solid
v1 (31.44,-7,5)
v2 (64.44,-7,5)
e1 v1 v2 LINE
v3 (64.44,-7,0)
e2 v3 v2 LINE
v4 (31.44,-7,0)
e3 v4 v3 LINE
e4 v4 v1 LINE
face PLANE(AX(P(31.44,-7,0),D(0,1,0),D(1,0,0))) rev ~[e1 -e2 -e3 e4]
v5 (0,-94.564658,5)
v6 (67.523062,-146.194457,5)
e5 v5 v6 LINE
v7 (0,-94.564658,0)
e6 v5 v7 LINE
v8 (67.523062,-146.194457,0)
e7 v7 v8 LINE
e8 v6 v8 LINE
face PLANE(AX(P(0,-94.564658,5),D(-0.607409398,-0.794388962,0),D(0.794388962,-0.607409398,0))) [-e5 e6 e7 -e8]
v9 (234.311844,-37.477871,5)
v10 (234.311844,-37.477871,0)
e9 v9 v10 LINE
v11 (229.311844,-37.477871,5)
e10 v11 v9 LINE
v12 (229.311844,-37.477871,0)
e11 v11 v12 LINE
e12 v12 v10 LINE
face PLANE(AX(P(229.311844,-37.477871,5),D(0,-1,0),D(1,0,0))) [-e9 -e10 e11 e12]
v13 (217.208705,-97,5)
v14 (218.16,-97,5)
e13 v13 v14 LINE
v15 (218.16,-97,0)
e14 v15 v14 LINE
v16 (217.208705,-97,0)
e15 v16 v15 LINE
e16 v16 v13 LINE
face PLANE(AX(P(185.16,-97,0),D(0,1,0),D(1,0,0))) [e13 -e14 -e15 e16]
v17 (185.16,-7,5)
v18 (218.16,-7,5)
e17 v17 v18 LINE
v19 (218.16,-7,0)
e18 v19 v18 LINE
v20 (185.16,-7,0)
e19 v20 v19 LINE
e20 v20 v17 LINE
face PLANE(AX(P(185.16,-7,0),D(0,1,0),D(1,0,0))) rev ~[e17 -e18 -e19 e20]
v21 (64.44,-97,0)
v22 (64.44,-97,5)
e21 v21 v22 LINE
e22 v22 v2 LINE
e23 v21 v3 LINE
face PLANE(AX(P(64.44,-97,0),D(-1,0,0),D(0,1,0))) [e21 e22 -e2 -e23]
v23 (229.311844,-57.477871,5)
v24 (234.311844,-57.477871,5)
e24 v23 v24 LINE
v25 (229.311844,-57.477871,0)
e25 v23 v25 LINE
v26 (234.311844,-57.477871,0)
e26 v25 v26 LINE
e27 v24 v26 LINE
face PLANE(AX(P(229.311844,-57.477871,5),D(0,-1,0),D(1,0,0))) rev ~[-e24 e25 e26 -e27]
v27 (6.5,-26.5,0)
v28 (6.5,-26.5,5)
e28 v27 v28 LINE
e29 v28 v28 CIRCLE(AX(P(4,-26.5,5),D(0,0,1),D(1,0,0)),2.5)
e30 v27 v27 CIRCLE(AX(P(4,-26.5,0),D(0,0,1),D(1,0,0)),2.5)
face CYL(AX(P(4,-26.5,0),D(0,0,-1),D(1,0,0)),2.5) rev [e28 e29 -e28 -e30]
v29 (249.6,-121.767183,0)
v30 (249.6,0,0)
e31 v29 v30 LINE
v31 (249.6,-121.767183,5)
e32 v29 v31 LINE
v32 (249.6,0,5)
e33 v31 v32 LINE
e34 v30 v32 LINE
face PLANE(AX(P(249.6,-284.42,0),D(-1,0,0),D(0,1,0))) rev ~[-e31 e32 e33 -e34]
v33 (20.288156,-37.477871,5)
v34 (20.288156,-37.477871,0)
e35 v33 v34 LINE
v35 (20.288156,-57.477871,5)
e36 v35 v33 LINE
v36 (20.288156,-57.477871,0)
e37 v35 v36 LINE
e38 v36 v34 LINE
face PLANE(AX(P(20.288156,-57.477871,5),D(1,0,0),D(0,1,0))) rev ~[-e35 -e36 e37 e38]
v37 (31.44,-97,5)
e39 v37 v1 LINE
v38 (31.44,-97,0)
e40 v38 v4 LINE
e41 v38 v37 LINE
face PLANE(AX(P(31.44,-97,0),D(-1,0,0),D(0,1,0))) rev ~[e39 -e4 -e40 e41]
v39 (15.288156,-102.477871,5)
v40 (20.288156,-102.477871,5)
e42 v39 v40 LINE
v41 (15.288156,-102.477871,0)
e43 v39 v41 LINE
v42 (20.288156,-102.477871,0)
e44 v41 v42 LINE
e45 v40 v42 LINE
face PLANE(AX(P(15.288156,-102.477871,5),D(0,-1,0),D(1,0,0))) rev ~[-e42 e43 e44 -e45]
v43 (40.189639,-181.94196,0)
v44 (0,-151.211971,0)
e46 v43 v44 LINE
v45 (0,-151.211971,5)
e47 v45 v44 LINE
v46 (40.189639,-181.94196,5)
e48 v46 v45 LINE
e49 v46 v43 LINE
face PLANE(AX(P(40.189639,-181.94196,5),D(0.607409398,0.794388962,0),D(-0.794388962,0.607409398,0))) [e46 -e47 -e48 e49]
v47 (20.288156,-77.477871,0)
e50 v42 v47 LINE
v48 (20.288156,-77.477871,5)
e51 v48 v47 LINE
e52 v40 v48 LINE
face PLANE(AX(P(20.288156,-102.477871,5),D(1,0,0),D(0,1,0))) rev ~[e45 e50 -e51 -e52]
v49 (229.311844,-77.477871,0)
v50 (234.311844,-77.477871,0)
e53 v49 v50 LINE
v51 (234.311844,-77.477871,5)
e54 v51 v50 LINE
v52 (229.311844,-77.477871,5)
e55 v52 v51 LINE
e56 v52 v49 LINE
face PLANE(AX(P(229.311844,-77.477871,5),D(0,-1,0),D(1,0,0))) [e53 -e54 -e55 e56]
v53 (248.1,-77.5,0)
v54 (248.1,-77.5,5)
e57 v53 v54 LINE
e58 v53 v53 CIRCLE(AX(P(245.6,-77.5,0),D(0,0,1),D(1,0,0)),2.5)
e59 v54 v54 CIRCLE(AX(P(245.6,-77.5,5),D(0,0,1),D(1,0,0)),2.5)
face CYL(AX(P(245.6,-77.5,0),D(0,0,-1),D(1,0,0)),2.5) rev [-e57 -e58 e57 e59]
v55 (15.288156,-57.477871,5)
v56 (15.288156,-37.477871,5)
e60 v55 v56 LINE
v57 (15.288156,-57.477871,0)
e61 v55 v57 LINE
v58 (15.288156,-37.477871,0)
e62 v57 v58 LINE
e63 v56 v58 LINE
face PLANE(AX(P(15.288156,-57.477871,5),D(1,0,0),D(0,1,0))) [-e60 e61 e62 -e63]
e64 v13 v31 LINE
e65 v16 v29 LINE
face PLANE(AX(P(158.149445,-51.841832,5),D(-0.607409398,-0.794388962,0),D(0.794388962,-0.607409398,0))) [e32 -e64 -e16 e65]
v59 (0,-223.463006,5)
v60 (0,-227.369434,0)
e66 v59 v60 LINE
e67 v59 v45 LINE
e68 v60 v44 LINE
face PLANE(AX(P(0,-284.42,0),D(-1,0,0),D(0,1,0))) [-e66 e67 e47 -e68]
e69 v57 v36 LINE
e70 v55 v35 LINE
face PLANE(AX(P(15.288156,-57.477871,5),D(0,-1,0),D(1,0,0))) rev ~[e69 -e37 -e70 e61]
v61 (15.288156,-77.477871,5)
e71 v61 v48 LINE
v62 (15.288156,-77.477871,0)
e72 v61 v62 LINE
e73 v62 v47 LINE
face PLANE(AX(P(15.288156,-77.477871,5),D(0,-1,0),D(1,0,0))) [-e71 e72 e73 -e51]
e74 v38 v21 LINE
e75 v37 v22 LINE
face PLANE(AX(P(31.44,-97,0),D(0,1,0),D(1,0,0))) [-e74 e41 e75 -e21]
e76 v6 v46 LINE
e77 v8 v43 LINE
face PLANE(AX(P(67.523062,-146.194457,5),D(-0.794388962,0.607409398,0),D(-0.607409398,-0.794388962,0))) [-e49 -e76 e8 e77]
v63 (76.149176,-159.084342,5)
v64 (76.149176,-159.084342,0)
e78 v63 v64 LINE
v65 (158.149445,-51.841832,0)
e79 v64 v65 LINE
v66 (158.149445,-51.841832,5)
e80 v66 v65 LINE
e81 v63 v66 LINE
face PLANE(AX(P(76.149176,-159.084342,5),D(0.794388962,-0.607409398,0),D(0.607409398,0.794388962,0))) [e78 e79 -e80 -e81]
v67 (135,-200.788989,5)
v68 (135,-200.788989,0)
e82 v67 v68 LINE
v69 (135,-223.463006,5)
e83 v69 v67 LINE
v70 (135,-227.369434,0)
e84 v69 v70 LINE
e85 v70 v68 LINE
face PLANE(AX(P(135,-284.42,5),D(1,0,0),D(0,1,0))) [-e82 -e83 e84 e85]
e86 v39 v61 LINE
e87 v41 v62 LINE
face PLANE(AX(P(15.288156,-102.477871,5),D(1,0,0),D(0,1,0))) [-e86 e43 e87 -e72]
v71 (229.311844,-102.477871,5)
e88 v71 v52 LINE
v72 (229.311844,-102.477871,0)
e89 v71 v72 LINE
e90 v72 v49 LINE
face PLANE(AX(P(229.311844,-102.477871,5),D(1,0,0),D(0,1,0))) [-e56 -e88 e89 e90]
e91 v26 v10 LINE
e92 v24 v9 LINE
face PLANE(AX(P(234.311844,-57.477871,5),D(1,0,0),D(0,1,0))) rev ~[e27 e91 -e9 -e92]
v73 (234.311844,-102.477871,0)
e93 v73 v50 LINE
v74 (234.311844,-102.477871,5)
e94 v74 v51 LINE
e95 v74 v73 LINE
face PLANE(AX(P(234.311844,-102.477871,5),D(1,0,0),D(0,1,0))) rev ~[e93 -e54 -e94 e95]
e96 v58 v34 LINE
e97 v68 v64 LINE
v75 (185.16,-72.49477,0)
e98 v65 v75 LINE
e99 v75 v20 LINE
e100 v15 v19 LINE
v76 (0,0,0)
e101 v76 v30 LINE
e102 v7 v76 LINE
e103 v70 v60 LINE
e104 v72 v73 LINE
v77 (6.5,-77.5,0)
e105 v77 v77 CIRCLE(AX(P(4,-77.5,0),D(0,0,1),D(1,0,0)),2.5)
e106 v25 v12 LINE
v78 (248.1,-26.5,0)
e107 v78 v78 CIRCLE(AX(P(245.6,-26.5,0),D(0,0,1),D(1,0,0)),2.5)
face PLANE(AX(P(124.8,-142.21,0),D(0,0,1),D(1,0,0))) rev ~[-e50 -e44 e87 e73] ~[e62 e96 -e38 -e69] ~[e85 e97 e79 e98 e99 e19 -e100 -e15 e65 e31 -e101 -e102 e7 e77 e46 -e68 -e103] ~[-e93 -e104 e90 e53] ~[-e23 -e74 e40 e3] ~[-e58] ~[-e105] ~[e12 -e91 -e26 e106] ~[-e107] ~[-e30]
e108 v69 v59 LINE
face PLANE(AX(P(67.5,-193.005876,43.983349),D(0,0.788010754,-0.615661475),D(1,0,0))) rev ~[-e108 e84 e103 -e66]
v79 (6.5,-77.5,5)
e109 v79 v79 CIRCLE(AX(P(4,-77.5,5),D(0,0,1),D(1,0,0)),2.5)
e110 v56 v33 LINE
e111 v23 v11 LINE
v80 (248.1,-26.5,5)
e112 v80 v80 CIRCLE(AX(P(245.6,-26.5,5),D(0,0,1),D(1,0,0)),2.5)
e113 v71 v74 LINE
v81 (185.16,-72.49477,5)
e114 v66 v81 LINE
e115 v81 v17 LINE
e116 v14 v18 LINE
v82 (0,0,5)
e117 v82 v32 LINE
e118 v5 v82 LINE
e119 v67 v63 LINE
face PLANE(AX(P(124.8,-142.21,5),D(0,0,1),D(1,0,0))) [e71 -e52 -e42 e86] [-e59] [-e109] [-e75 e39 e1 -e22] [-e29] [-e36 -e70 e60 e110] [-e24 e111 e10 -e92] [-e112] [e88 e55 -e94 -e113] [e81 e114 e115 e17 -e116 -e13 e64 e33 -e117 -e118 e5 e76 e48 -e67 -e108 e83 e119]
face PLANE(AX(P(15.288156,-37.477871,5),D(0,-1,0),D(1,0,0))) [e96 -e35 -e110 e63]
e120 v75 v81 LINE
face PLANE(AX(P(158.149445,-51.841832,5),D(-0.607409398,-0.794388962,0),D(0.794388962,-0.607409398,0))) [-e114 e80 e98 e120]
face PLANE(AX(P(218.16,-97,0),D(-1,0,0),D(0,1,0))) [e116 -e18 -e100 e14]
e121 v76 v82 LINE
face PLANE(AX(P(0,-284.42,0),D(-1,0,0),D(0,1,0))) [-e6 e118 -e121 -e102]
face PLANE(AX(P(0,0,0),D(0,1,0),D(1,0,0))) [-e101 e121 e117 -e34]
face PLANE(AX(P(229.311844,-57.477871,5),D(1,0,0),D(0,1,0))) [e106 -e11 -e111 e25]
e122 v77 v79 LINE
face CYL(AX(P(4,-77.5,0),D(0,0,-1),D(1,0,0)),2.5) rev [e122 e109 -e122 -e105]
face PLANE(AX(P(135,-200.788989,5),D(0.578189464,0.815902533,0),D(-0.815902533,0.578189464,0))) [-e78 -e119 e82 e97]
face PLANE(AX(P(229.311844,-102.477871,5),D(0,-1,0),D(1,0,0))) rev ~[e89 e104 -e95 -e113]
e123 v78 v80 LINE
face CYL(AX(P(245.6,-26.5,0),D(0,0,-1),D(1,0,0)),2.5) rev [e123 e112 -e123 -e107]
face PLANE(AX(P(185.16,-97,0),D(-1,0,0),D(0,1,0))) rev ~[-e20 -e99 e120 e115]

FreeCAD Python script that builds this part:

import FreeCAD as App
import Part
import Sketcher

V = App.Vector
Q = App.Units.Quantity


def add_polygon(sketch, points):
    """Adds a closed chain of lines whose ends are joined by coincident constraints."""
    first, n = sketch.GeometryCount, len(points)
    for a, b in zip(points, points[1:] + points[:1]):
        sketch.addGeometry(Part.LineSegment(App.Vector(*a, 0), App.Vector(*b, 0)), False)
    for i in range(n):
        sketch.addConstraint(Sketcher.Constraint("Coincident", first + i, 2, first + (i + 1) % n, 1))

doc = App.newDocument("Part")
body = doc.addObject("PartDesign::Body", "Body")

sketch1 = body.newObject("Sketcher::SketchObject", "Sketch")
sketch1.AttachmentSupport = (doc.getObject("XY_Plane"), [""])
sketch1.MapMode = "FlatFace"
add_polygon(sketch1, [(0, 0), (0, -284.4), (249.6, -284.4), (249.6, 0)])
sketch1.addGeometry(Part.Circle(V(4, -77.5, 0), V(0, 0, 1), 2.5), False)
sketch1.addGeometry(Part.Circle(V(245.6, -77.5, 0), V(0, 0, 1), 2.5), False)
add_polygon(sketch1, [(64.4, -97), (31.4, -97), (31.4, -7), (64.4, -7)])
sketch1.addGeometry(Part.Circle(V(4, -26.5, 0), V(0, 0, 1), 2.5), False)
add_polygon(sketch1, [(218.2, -97), (185.2, -97), (185.2, -7), (218.2, -7)])
sketch1.addGeometry(Part.Circle(V(245.6, -26.5, 0), V(0, 0, 1), 2.5), False)
sketch1.addConstraint([
    Sketcher.Constraint("Vertical", 0),
    Sketcher.Constraint("Horizontal", 1),
    Sketcher.Constraint("Vertical", 2),
    Sketcher.Constraint("Horizontal", 3),
    Sketcher.Constraint("Horizontal", 6),
    Sketcher.Constraint("Vertical", 7),
    Sketcher.Constraint("Horizontal", 8),
    Sketcher.Constraint("Vertical", 9),
    Sketcher.Constraint("Horizontal", 11),
    Sketcher.Constraint("Vertical", 12),
    Sketcher.Constraint("Horizontal", 13),
    Sketcher.Constraint("Vertical", 14),
    Sketcher.Constraint("Coincident", 3, 2, -1, 1),
    Sketcher.Constraint("Equal", 4, 5),
    Sketcher.Constraint("Equal", 5, 10),
    Sketcher.Constraint("Equal", 10, 15),
    Sketcher.Constraint("Horizontal", 4, 3, 5, 3),
    Sketcher.Constraint("Horizontal", 10, 3, 15, 3),
    Sketcher.Constraint("Horizontal", 9, 2, 11, 2),
    Sketcher.Constraint("Horizontal", 8, 2, 12, 2),
    Sketcher.Constraint("Vertical", 4, 3, 10, 3),
    Sketcher.Constraint("Vertical", 5, 3, 15, 3),
    Sketcher.Constraint("Equal", 8, 11),
    Sketcher.Constraint("Diameter", 4, Q("5 mm")),
    Sketcher.Constraint("DistanceX", 6, 2, 6, 1, Q("33 mm")),
    Sketcher.Constraint("DistanceY", 7, 1, 7, 2, Q("90 mm")),
    Sketcher.Constraint("DistanceX", 1, 1, 1, 2, Q("249.6 mm")),
    Sketcher.Constraint("DistanceX", -1, 1, 4, 3, Q("4 mm")),
    Sketcher.Constraint("DistanceY", 6, 2, -1, 1, Q("97 mm")),
    Sketcher.Constraint("DistanceY", 4, 3, 10, 3, Q("51 mm")),
    Sketcher.Constraint("DistanceX", 5, 3, 1, 2, Q("4 mm")),
    Sketcher.Constraint("DistanceY", 0, 2, 0, 1, Q("284.42 mm")),
    Sketcher.Constraint("DistanceY", 4, 3, -1, 1, Q("77.5 mm")),
    Sketcher.Constraint("DistanceX", -1, 1, 6, 2, Q("31.44 mm")),
    Sketcher.Constraint("DistanceX", -1, 1, 11, 2, Q("185.16 mm")),
])
pad1 = body.newObject("PartDesign::Pad", "Pad")
pad1.Profile = sketch1
pad1.Length = 5

sketch2 = body.newObject("Sketcher::SketchObject", "Sketch001")
sketch2.Placement = App.Placement(V(0, -141.187539, 110.307795), App.Rotation(V(1, 0, 0), V(0, -0.615661475, -0.788010754), V(0, 0.788010754, -0.615661475), "ZXY"))
add_polygon(sketch2, [(0, 206), (0, -38), (135, -38), (135, 206)])
sketch2.addConstraint([
    Sketcher.Constraint("Vertical", 0),
    Sketcher.Constraint("Horizontal", 1),
    Sketcher.Constraint("Vertical", 2),
    Sketcher.Constraint("Horizontal", 3),
    Sketcher.Constraint("PointOnObject", 0, 2, -2),
    Sketcher.Constraint("DistanceX", 1, 1, 1, 2, Q("135 mm")),
    Sketcher.Constraint("DistanceY", 0, 2, 0, 1, Q("244.466651 mm")),
    Sketcher.Constraint("DistanceY", 0, 2, -1, 1, Q("38.066395 mm")),
])
pocket1 = body.newObject("PartDesign::Pocket", "Pocket")
pocket1.Profile = sketch2
pocket1.Type = "ThroughAll"

sketch3 = body.newObject("Sketcher::SketchObject", "Sketch002")
sketch3.AttachmentSupport = (doc.getObject("XY_Plane"), [""])
sketch3.MapMode = "FlatFace"
sketch3.AttachmentOffset = App.Placement(V(0, 0, 5), App.Rotation())
add_polygon(sketch3, [(158, -52), (76, -159), (135, -201), (135, -284), (207, -340), (328, -182)])
sketch3.addConstraint([
    Sketcher.Constraint("Vertical", 2),
    Sketcher.Constraint("Perpendicular", 0, 3),
    Sketcher.Constraint("Perpendicular", 3, 4),
    Sketcher.Constraint("Perpendicular", 4, 5),
    Sketcher.Constraint("Distance", 0, Q("135 mm")),
    Sketcher.Constraint("DistanceX", -1, 1, 1, 2, Q("135 mm")),
    Sketcher.Constraint("DistanceY", 2, 2, -1, 1, Q("284.42 mm")),
    Sketcher.Constraint("DistanceY", 2, 2, 2, 1, Q("83.631011 mm")),
    Sketcher.Constraint("Distance", 4, Q("198.818719 mm")),
    Sketcher.Constraint("DistanceX", -1, 1, 3, 2, Q("207.318768 mm")),
    Sketcher.Constraint("DistanceY", 4, 2, -1, 1, Q("181.777318 mm")),
    Sketcher.Constraint("DistanceY", 3, 2, 0, 2, Q("180.632372 mm")),
])
pocket2 = body.newObject("PartDesign::Pocket", "Pocket001")
pocket2.Profile = sketch3
pocket2.Type = "ThroughAll"

sketch4 = body.newObject("Sketcher::SketchObject", "Sketch003")
sketch4.AttachmentSupport = (doc.getObject("XY_Plane"), [""])
sketch4.MapMode = "FlatFace"
sketch4.AttachmentOffset = App.Placement(V(0, 0, 5), App.Rotation())
add_polygon(sketch4, [(68, -146), (0, -95), (-27, -130), (40, -182)])
sketch4.addConstraint([
    Sketcher.Constraint("PointOnObject", 0, 2, -2),
    Sketcher.Constraint("Perpendicular", 0, 1),
    Sketcher.Constraint("Perpendicular", 1, 2),
    Sketcher.Constraint("Perpendicular", 2, 3),
    Sketcher.Constraint("Distance", 0, Q("85 mm")),
    Sketcher.Constraint("Distance", 1, Q("45 mm")),
    Sketcher.Constraint("DistanceY", 2, 2, 1, 2, Q("51.629799 mm")),
    Sketcher.Constraint("DistanceY", 0, 2, -1, 1, Q("94.564658 mm")),
])
pocket3 = body.newObject("PartDesign::Pocket", "Pocket002")
pocket3.Profile = sketch4
pocket3.Type = "ThroughAll"

sketch5 = body.newObject("Sketcher::SketchObject", "Sketch004")
sketch5.AttachmentSupport = (doc.getObject("XY_Plane"), [""])
sketch5.MapMode = "FlatFace"
sketch5.AttachmentOffset = App.Placement(V(0, 0, 5), App.Rotation())
add_polygon(sketch5, [(15, -37), (15, -57), (20, -57), (20, -37)])
add_polygon(sketch5, [(229, -37), (229, -57), (234, -57), (234, -37)])
add_polygon(sketch5, [(15, -77), (15, -102), (20, -102), (20, -77)])
add_polygon(sketch5, [(229, -77), (229, -102), (234, -102), (234, -77)])
sketch5.addConstraint([
    Sketcher.Constraint("Vertical", 0),
    Sketcher.Constraint("Horizontal", 1),
    Sketcher.Constraint("Vertical", 2),
    Sketcher.Constraint("Horizontal", 3),
    Sketcher.Constraint("Vertical", 4),
    Sketcher.Constraint("Horizontal", 5),
    Sketcher.Constraint("Vertical", 6),
    Sketcher.Constraint("Horizontal", 7),
    Sketcher.Constraint("Vertical", 8),
    Sketcher.Constraint("Horizontal", 9),
    Sketcher.Constraint("Vertical", 10),
    Sketcher.Constraint("Horizontal", 11),
    Sketcher.Constraint("Vertical", 12),
    Sketcher.Constraint("Horizontal", 13),
    Sketcher.Constraint("Vertical", 14),
    Sketcher.Constraint("Horizontal", 15),
    Sketcher.Constraint("Horizontal", 1, 2, 4, 2),
    Sketcher.Constraint("Horizontal", 3, 2, 6, 2),
    Sketcher.Constraint("Horizontal", 9, 2, 12, 2),
    Sketcher.Constraint("Horizontal", 11, 2, 14, 2),
    Sketcher.Constraint("Vertical", 3, 2, 8, 2),
    Sketcher.Constraint("Vertical", 2, 2, 9, 2),
    Sketcher.Constraint("Vertical", 7, 2, 12, 2),
    Sketcher.Constraint("Vertical", 6, 2, 13, 2),
    Sketcher.Constraint("Equal", 3, 5),
    Sketcher.Constraint("DistanceX", 1, 1, 1, 2, Q("5 mm")),
    Sketcher.Constraint("DistanceY", 0, 2, 0, 1, Q("20 mm")),
    Sketcher.Constraint("DistanceY", 8, 2, 8, 1, Q("25 mm")),
    Sketcher.Constraint("DistanceY", 8, 2, 0, 2, Q("45 mm")),
    Sketcher.Constraint("DistanceY", 0, 2, -1, 1, Q("57.477871 mm")),
    Sketcher.Constraint("DistanceX", 1, 2, 4, 2, Q("209.023689 mm")),
    Sketcher.Constraint("DistanceX", -1, 1, 0, 2, Q("15.288156 mm")),
])
pocket4 = body.newObject("PartDesign::Pocket", "Pocket003")
pocket4.Profile = sketch5
pocket4.Type = "ThroughAll"

doc.recompute()
